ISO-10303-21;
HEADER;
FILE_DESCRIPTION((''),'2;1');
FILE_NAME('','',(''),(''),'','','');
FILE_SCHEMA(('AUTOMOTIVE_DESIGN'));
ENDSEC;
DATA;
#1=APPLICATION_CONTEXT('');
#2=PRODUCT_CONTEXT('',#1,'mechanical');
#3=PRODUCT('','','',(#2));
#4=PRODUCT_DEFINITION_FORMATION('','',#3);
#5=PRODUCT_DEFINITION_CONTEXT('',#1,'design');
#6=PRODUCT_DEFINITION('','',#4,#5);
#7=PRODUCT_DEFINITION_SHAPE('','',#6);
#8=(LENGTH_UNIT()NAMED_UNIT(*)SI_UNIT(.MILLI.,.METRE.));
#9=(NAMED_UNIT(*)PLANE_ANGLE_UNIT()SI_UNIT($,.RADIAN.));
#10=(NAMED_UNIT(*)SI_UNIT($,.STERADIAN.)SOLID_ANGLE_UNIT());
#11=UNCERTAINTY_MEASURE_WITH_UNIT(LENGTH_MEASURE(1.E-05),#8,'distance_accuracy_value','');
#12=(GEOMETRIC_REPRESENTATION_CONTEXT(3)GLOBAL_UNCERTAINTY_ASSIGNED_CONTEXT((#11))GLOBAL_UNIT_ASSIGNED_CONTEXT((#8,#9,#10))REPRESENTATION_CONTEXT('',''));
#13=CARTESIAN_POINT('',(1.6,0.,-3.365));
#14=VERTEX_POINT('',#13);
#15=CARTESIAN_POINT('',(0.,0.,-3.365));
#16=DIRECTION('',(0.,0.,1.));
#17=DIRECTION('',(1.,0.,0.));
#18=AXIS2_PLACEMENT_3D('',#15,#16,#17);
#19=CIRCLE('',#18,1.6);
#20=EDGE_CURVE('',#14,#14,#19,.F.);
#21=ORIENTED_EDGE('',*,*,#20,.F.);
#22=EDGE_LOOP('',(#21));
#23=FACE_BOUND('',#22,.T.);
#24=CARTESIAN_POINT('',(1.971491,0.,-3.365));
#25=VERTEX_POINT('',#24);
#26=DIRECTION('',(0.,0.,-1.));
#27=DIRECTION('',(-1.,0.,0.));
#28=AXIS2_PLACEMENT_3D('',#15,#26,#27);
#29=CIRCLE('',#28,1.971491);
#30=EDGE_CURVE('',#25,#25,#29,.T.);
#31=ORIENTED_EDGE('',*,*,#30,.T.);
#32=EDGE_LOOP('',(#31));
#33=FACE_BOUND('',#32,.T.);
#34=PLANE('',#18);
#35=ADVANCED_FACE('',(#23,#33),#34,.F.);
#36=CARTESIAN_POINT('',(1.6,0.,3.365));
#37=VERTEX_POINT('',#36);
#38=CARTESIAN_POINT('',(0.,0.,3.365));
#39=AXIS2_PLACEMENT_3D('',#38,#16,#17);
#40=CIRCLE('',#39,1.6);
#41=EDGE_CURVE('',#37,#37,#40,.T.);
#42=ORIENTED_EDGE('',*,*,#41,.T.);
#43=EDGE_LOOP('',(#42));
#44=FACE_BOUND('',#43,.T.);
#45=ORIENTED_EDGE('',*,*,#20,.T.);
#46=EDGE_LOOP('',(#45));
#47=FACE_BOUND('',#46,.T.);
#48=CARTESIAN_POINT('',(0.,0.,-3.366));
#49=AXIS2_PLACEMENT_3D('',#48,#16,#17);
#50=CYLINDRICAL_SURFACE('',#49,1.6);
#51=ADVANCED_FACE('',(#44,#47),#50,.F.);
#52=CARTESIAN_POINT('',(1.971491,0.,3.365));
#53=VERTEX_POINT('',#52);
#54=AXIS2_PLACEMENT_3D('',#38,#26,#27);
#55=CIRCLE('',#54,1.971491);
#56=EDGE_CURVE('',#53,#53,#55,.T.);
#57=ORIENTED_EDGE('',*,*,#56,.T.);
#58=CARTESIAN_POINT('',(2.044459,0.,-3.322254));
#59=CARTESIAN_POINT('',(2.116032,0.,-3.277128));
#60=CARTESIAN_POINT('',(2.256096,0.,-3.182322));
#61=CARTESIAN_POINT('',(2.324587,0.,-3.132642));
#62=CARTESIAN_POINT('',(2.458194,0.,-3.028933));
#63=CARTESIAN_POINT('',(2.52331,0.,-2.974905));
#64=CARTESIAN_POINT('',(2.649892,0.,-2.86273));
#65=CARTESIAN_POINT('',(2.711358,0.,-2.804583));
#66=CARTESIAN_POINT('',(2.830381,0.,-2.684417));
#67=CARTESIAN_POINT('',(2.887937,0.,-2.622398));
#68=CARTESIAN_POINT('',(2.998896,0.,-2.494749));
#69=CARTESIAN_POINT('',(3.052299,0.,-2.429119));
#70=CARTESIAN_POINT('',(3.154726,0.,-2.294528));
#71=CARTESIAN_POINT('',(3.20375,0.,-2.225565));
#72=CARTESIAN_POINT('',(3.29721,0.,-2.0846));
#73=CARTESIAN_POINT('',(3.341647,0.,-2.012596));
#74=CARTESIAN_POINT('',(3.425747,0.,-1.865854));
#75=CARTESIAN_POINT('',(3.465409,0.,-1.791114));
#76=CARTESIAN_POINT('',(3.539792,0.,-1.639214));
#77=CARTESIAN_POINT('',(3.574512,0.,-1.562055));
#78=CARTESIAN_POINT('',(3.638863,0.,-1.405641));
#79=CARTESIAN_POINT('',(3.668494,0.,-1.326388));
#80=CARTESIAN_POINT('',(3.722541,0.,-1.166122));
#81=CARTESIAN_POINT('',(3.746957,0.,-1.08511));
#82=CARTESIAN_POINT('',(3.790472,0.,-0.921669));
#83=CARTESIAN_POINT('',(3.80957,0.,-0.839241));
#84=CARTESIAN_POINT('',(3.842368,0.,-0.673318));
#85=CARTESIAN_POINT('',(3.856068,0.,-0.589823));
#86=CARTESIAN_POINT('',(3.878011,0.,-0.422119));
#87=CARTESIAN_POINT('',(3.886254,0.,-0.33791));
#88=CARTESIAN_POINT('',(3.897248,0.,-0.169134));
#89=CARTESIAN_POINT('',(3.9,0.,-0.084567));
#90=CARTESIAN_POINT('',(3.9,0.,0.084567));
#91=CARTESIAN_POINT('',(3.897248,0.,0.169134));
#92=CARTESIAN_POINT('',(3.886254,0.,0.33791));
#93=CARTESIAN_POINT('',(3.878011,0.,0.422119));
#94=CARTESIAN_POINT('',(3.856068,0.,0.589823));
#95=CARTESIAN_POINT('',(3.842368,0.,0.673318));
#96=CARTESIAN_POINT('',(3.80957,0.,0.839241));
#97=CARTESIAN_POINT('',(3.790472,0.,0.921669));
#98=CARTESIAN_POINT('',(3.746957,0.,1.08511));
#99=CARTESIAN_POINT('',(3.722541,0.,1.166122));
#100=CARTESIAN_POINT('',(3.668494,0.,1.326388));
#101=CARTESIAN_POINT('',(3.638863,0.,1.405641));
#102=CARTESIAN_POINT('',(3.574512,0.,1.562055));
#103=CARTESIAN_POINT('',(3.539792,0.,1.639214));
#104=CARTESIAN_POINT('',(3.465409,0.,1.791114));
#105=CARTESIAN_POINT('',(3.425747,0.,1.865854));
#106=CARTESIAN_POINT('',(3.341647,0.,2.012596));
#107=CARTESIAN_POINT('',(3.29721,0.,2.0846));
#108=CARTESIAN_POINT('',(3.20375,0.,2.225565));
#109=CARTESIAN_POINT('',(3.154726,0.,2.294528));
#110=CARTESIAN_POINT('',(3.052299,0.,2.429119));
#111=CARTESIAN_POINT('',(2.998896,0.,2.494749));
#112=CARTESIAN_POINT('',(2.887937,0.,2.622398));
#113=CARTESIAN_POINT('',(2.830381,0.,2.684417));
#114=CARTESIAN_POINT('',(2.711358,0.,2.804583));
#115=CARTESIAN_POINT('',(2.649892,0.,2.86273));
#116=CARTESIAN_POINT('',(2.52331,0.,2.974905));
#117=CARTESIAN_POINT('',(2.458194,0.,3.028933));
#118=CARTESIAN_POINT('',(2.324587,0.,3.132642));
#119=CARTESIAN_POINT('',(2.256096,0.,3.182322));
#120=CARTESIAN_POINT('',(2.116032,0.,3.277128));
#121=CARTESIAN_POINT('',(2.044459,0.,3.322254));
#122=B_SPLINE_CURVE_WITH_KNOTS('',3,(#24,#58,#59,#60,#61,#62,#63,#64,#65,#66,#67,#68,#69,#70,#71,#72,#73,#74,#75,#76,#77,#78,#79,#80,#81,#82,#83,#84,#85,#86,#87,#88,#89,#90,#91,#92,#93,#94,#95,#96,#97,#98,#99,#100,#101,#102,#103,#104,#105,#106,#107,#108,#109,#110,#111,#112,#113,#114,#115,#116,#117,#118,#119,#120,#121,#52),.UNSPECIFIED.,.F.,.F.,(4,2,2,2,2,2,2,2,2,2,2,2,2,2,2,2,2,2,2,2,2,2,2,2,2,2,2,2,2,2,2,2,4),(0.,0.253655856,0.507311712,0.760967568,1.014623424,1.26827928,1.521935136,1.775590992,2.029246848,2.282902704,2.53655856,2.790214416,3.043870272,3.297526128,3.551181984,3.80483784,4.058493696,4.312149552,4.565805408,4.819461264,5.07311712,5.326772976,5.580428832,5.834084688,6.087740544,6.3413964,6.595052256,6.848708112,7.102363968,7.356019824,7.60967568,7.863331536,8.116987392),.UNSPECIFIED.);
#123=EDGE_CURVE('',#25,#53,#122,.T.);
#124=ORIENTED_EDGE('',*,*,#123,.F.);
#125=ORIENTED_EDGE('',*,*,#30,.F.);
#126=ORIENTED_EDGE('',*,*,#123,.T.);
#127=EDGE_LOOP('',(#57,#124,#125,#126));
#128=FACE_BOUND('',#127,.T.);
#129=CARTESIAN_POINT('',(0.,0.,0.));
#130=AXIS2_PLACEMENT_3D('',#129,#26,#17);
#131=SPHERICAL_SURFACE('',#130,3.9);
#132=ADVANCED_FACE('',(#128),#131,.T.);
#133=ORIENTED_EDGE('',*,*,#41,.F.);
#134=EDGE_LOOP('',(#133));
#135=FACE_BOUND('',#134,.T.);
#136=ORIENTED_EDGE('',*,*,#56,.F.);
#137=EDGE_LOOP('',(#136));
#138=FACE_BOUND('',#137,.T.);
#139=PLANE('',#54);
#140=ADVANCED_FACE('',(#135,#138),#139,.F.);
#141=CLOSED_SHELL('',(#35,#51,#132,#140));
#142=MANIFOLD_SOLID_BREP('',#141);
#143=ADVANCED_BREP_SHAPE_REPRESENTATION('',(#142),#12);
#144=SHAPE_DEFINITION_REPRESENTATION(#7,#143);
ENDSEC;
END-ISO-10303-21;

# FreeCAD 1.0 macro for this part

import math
import FreeCAD as App
import Part
import Sketcher
from FreeCAD import Vector
Q = App.Units.Quantity

doc = App.newDocument("Part")
params = doc.addObject("Spreadsheet::Sheet", "Params")
for row, (alias, value) in enumerate([
    ("sketch1_radius", "3.9 mm"),
    ("sketch1_height", "6.73 mm"),
    ("revolution_angle", "360 deg"),
    ("sketch2_diameter", "3.2 mm"),
], start=1):
    params.set(f"A{row}", alias)
    params.set(f"B{row}", "=" + value)
    params.setAlias(f"B{row}", alias)

body = doc.addObject("PartDesign::Body", "Body")

# Sketch on XZ plane
sketch1 = body.newObject("Sketcher::SketchObject", "Sketch")
sketch1.AttachmentSupport = (doc.getObject("XZ_Plane"), [""])
sketch1.MapMode = "FlatFace"
sketch1.addGeometry([
    Part.LineSegment(Vector(0, -3.365, 0), Vector(0, 3.365, 0)),
    Part.LineSegment(Vector(0, 3.365, 0), Vector(1.971491, 3.365, 0)),
    Part.ArcOfCircle(Part.Circle(Vector(0, 0, 0), Vector(0, 0, 1), 3.9), math.radians(-59.63476), math.radians(59.63476)),
    Part.LineSegment(Vector(1.971491, -3.365, 0), Vector(0, -3.365, 0)),
], False)
sketch1.addConstraint([
    Sketcher.Constraint("Coincident", 0, 2, 1, 1),
    Sketcher.Constraint("Coincident", 1, 2, 2, 2),
    Sketcher.Constraint("Coincident", 2, 1, 3, 1),
    Sketcher.Constraint("Coincident", 3, 2, 0, 1),
    Sketcher.Constraint("Vertical", 0),
    Sketcher.Constraint("Horizontal", 1),
    Sketcher.Constraint("Horizontal", 3),
    Sketcher.Constraint("Coincident", 2, 3, -1, 1),
    Sketcher.Constraint("Symmetric", 0, 2, 3, 2, -1, 1),
    Sketcher.Constraint("Radius", 2, Q("3.9 mm")),
    Sketcher.Constraint("DistanceY", 0, 1, 0, 2, Q("6.73 mm")),
])
sketch1.setExpression("Constraints[9]", "Params.sketch1_radius")
sketch1.setExpression("Constraints[10]", "Params.sketch1_height")
revolution = body.newObject("PartDesign::Revolution", "Revolution")
revolution.Profile = sketch1
revolution.ReferenceAxis = (sketch1, ["V_Axis"])
revolution.setExpression("Angle", "Params.revolution_angle")

# Sketch on XY plane
sketch2 = body.newObject("Sketcher::SketchObject", "Sketch001")
sketch2.AttachmentSupport = (doc.getObject("XY_Plane"), [""])
sketch2.MapMode = "FlatFace"
sketch2.AttachmentOffset = App.Placement(Vector(0, 0, 3.365), App.Rotation())
sketch2.addGeometry(Part.Circle(Vector(0, 0, 0), Vector(0, 0, 1), 1.6), False)
sketch2.addConstraint([
    Sketcher.Constraint("Coincident", 0, 3, -1, 1),
    Sketcher.Constraint("Diameter", 0, Q("3.2 mm")),
])
sketch2.setExpression("Constraints[1]", "Params.sketch2_diameter")
pocket1 = body.newObject("PartDesign::Pocket", "Pocket")
pocket1.Profile = sketch2
pocket1.Type = "UpToFirst"

doc.recompute()
